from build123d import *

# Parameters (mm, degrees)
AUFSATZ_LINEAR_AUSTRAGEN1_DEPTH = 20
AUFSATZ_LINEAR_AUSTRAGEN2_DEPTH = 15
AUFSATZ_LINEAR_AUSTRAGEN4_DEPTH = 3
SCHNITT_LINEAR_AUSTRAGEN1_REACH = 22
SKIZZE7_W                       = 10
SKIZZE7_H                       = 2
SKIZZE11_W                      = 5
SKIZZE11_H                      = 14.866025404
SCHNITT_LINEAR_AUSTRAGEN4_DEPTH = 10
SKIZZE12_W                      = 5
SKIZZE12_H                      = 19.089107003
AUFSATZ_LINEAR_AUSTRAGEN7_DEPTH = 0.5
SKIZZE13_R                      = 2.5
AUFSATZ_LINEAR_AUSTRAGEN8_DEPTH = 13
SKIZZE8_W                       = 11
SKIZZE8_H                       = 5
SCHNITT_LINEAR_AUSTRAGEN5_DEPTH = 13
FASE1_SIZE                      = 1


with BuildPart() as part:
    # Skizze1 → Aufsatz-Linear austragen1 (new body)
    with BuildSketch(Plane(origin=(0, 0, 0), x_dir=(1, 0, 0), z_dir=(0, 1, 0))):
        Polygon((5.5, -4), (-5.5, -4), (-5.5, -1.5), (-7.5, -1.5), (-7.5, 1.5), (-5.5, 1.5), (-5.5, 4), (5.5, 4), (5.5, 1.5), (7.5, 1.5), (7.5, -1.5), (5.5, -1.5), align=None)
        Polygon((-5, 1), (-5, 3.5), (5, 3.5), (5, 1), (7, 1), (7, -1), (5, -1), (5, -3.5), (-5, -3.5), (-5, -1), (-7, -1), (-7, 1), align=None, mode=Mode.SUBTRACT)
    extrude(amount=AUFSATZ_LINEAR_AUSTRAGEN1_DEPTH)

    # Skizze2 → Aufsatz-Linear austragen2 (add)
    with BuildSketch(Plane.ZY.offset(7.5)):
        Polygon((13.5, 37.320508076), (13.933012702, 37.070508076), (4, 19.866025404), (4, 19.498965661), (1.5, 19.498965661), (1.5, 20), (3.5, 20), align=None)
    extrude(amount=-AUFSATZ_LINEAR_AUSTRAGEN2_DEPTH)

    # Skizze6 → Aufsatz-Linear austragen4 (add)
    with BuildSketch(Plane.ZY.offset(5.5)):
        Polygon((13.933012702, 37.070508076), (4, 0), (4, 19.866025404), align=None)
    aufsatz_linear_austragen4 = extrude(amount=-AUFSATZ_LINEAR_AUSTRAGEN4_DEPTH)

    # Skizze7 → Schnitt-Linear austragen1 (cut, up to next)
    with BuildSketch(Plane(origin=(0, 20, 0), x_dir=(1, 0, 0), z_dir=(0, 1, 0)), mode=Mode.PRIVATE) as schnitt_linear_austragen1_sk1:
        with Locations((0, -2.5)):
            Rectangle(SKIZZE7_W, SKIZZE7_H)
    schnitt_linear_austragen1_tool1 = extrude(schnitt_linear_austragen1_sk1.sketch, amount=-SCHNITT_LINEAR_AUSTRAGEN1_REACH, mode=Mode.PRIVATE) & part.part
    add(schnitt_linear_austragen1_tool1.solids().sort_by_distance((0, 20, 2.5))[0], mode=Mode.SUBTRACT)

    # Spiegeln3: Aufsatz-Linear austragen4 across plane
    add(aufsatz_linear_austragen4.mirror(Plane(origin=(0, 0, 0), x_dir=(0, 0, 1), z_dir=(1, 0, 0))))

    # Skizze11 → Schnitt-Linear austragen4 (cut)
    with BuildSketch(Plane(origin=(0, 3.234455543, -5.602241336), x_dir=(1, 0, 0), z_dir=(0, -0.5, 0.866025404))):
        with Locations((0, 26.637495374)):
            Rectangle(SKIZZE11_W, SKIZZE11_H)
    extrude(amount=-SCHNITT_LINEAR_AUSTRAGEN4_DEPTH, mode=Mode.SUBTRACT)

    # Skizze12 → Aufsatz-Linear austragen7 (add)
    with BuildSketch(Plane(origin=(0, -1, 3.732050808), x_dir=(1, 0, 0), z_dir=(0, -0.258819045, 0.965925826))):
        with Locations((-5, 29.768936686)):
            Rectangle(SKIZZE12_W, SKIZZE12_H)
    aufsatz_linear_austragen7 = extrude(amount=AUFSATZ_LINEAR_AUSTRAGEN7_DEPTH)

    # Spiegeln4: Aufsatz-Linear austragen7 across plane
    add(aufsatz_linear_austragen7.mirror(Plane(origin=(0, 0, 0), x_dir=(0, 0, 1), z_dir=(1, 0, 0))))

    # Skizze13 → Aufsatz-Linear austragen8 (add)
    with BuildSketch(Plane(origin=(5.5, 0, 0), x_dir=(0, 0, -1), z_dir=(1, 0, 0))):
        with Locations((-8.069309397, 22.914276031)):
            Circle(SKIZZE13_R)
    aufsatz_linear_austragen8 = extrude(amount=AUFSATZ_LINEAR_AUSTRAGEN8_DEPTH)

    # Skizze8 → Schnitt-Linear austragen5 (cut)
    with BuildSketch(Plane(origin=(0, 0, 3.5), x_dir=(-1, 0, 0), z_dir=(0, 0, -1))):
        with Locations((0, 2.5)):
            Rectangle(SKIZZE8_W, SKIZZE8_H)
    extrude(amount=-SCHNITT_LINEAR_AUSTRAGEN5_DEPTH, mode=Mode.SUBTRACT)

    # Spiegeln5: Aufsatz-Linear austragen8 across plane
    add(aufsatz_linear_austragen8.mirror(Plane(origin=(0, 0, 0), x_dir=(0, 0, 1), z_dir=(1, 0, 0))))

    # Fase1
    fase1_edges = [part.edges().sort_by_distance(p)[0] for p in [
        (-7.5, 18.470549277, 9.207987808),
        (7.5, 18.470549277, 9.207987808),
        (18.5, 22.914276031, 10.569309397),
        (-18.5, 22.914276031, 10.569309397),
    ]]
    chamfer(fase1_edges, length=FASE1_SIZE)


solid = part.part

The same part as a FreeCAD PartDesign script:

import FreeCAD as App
import Part
import Sketcher

V = App.Vector
Q = App.Units.Quantity


def edges_at(feature, points):
    """Names of the edges that pass closest to the given points."""
    edges = feature.Shape.Edges
    near = lambda p: min(range(len(edges)), key=lambda i: edges[i].distToShape(Part.Vertex(*p))[0])
    return sorted({f"Edge{near(p) + 1}" for p in points})

doc = App.newDocument("Part")
params = doc.addObject("Spreadsheet::Sheet", "Params")
for row, (alias, value) in enumerate([
    ("sketch1_width", "11 mm"),
    ("sketch1_width2", "2 mm"),
    ("sketch1_width3", "10 mm"),
    ("sketch1_height", "3 mm"),
    ("sketch1_height2", "2.5 mm"),
    ("pad1_length", "20 mm"),
    ("sketch2_height", "2 mm"),
    ("sketch2_length", "20 mm"),
    ("sketch2_height2", "2.5 mm"),
    ("sketch2_length2", "0.5 mm"),
    ("pad2_length", "15 mm"),
    ("pad3_length", "3 mm"),
    ("sketch4_width", "10 mm"),
    ("sketch4_height", "2 mm"),
    ("sketch5_width", "5 mm"),
    ("pocket2_length", "10 mm"),
    ("sketch6_width", "5 mm"),
    ("pad4_length", "0.5 mm"),
    ("sketch7_diameter", "5 mm"),
    ("pad5_length", "13 mm"),
    ("sketch8_width", "11 mm"),
    ("sketch8_height", "5 mm"),
    ("pocket3_length", "13 mm"),
    ("chamfer_size", "1 mm"),
], start=1):
    params.set(f"A{row}", alias)
    params.set(f"B{row}", "=" + value)
    params.setAlias(f"B{row}", alias)

body = doc.addObject("PartDesign::Body", "Body")

# Sketch on XZ plane
sketch1 = doc.addObject("Sketcher::SketchObject", "Sketch")
body.addObject(sketch1)
sketch1.AttachmentSupport = (doc.XZ_Plane, [""])
sketch1.MapMode = "FlatFace"
sketch1.addGeometry(Part.LineSegment(V(-5.5, 4, 0), V(5.5, 4, 0)), False)
sketch1.addGeometry(Part.LineSegment(V(5.5, 4, 0), V(5.5, 1.5, 0)), False)
sketch1.addGeometry(Part.LineSegment(V(5.5, 1.5, 0), V(7.5, 1.5, 0)), False)
sketch1.addGeometry(Part.LineSegment(V(7.5, 1.5, 0), V(7.5, -1.5, 0)), False)
sketch1.addGeometry(Part.LineSegment(V(7.5, -1.5, 0), V(5.5, -1.5, 0)), False)
sketch1.addGeometry(Part.LineSegment(V(5.5, -1.5, 0), V(5.5, -4, 0)), False)
sketch1.addGeometry(Part.LineSegment(V(5.5, -4, 0), V(-5.5, -4, 0)), False)
sketch1.addGeometry(Part.LineSegment(V(-5.5, -4, 0), V(-5.5, -1.5, 0)), False)
sketch1.addGeometry(Part.LineSegment(V(-5.5, -1.5, 0), V(-7.5, -1.5, 0)), False)
sketch1.addGeometry(Part.LineSegment(V(-7.5, -1.5, 0), V(-7.5, 1.5, 0)), False)
sketch1.addGeometry(Part.LineSegment(V(-7.5, 1.5, 0), V(-5.5, 1.5, 0)), False)
sketch1.addGeometry(Part.LineSegment(V(-5.5, 1.5, 0), V(-5.5, 4, 0)), False)
sketch1.addGeometry(Part.LineSegment(V(-5, -1, 0), V(-5, -3.5, 0)), False)
sketch1.addGeometry(Part.LineSegment(V(-5, -3.5, 0), V(5, -3.5, 0)), False)
sketch1.addGeometry(Part.LineSegment(V(5, -3.5, 0), V(5, -1, 0)), False)
sketch1.addGeometry(Part.LineSegment(V(5, -1, 0), V(7, -1, 0)), False)
sketch1.addGeometry(Part.LineSegment(V(7, -1, 0), V(7, 1, 0)), False)
sketch1.addGeometry(Part.LineSegment(V(7, 1, 0), V(5, 1, 0)), False)
sketch1.addGeometry(Part.LineSegment(V(5, 1, 0), V(5, 3.5, 0)), False)
sketch1.addGeometry(Part.LineSegment(V(5, 3.5, 0), V(-5, 3.5, 0)), False)
sketch1.addGeometry(Part.LineSegment(V(-5, 3.5, 0), V(-5, 1, 0)), False)
sketch1.addGeometry(Part.LineSegment(V(-5, 1, 0), V(-7, 1, 0)), False)
sketch1.addGeometry(Part.LineSegment(V(-7, 1, 0), V(-7, -1, 0)), False)
sketch1.addGeometry(Part.LineSegment(V(-7, -1, 0), V(-5, -1, 0)), False)
sketch1.addConstraint(Sketcher.Constraint("Coincident", 0, 2, 1, 1))
sketch1.addConstraint(Sketcher.Constraint("Coincident", 1, 2, 2, 1))
sketch1.addConstraint(Sketcher.Constraint("Coincident", 2, 2, 3, 1))
sketch1.addConstraint(Sketcher.Constraint("Coincident", 3, 2, 4, 1))
sketch1.addConstraint(Sketcher.Constraint("Coincident", 4, 2, 5, 1))
sketch1.addConstraint(Sketcher.Constraint("Coincident", 5, 2, 6, 1))
sketch1.addConstraint(Sketcher.Constraint("Coincident", 6, 2, 7, 1))
sketch1.addConstraint(Sketcher.Constraint("Coincident", 7, 2, 8, 1))
sketch1.addConstraint(Sketcher.Constraint("Coincident", 8, 2, 9, 1))
sketch1.addConstraint(Sketcher.Constraint("Coincident", 9, 2, 10, 1))
sketch1.addConstraint(Sketcher.Constraint("Coincident", 10, 2, 11, 1))
sketch1.addConstraint(Sketcher.Constraint("Coincident", 11, 2, 0, 1))
sketch1.addConstraint(Sketcher.Constraint("Coincident", 12, 2, 13, 1))
sketch1.addConstraint(Sketcher.Constraint("Coincident", 13, 2, 14, 1))
sketch1.addConstraint(Sketcher.Constraint("Coincident", 14, 2, 15, 1))
sketch1.addConstraint(Sketcher.Constraint("Coincident", 15, 2, 16, 1))
sketch1.addConstraint(Sketcher.Constraint("Coincident", 16, 2, 17, 1))
sketch1.addConstraint(Sketcher.Constraint("Coincident", 17, 2, 18, 1))
sketch1.addConstraint(Sketcher.Constraint("Coincident", 18, 2, 19, 1))
sketch1.addConstraint(Sketcher.Constraint("Coincident", 19, 2, 20, 1))
sketch1.addConstraint(Sketcher.Constraint("Coincident", 20, 2, 21, 1))
sketch1.addConstraint(Sketcher.Constraint("Coincident", 21, 2, 22, 1))
sketch1.addConstraint(Sketcher.Constraint("Coincident", 22, 2, 23, 1))
sketch1.addConstraint(Sketcher.Constraint("Coincident", 23, 2, 12, 1))
sketch1.addConstraint(Sketcher.Constraint("Horizontal", 0))
sketch1.addConstraint(Sketcher.Constraint("Vertical", 1))
sketch1.addConstraint(Sketcher.Constraint("Horizontal", 2))
sketch1.addConstraint(Sketcher.Constraint("Vertical", 3))
sketch1.addConstraint(Sketcher.Constraint("Horizontal", 4))
sketch1.addConstraint(Sketcher.Constraint("Vertical", 5))
sketch1.addConstraint(Sketcher.Constraint("Horizontal", 6))
sketch1.addConstraint(Sketcher.Constraint("Vertical", 7))
sketch1.addConstraint(Sketcher.Constraint("Horizontal", 8))
sketch1.addConstraint(Sketcher.Constraint("Vertical", 9))
sketch1.addConstraint(Sketcher.Constraint("Horizontal", 10))
sketch1.addConstraint(Sketcher.Constraint("Vertical", 11))
sketch1.addConstraint(Sketcher.Constraint("Vertical", 12))
sketch1.addConstraint(Sketcher.Constraint("Horizontal", 13))
sketch1.addConstraint(Sketcher.Constraint("Vertical", 14))
sketch1.addConstraint(Sketcher.Constraint("Horizontal", 15))
sketch1.addConstraint(Sketcher.Constraint("Vertical", 16))
sketch1.addConstraint(Sketcher.Constraint("Horizontal", 17))
sketch1.addConstraint(Sketcher.Constraint("Vertical", 18))
sketch1.addConstraint(Sketcher.Constraint("Horizontal", 19))
sketch1.addConstraint(Sketcher.Constraint("Vertical", 20))
sketch1.addConstraint(Sketcher.Constraint("Horizontal", 21))
sketch1.addConstraint(Sketcher.Constraint("Vertical", 22))
sketch1.addConstraint(Sketcher.Constraint("Horizontal", 23))
sketch1.addConstraint(Sketcher.Constraint("Symmetric", 0, 2, 6, 2, -1, 1))
sketch1.addConstraint(Sketcher.Constraint("Symmetric", 2, 2, 8, 2, -1, 1))
sketch1.addConstraint(Sketcher.Constraint("Symmetric", 4, 2, 10, 2, -1, 1))
sketch1.addConstraint(Sketcher.Constraint("Symmetric", 12, 2, 18, 2, -1, 1))
sketch1.addConstraint(Sketcher.Constraint("Symmetric", 14, 2, 20, 2, -1, 1))
sketch1.addConstraint(Sketcher.Constraint("Symmetric", 16, 2, 22, 2, -1, 1))
sketch1.addConstraint(Sketcher.Constraint("Symmetric", 4, 2, 7, 2, -2))
sketch1.addConstraint(Sketcher.Constraint("Symmetric", 17, 2, 20, 2, -2))
sketch1.addConstraint(Sketcher.Constraint("Equal", 10, 15))
sketch1.addConstraint(Sketcher.Constraint("Equal", 11, 12))
sketch1.addConstraint(Sketcher.Constraint("Equal", 23, 16))
sketch1.addConstraint(Sketcher.Constraint("DistanceX", 0, 1, 0, 2, Q("11 mm")))
sketch1.addConstraint(Sketcher.Constraint("DistanceX", 2, 1, 2, 2, Q("2 mm")))
sketch1.addConstraint(Sketcher.Constraint("DistanceX", 13, 1, 13, 2, Q("10 mm")))
sketch1.addConstraint(Sketcher.Constraint("DistanceY", 3, 2, 3, 1, Q("3 mm")))
sketch1.addConstraint(Sketcher.Constraint("DistanceY", 1, 2, 1, 1, Q("2.5 mm")))
sketch1.setExpression("Constraints[59]", "Params.sketch1_width")
sketch1.setExpression("Constraints[60]", "Params.sketch1_width2")
sketch1.setExpression("Constraints[61]", "Params.sketch1_width3")
sketch1.setExpression("Constraints[62]", "Params.sketch1_height")
sketch1.setExpression("Constraints[63]", "Params.sketch1_height2")
pad1 = doc.addObject("PartDesign::Pad", "Pad")
body.addObject(pad1)
pad1.Profile = sketch1
pad1.setExpression("Length", "Params.pad1_length")
pad1.Reversed = True

# Sketch on YZ plane
sketch2 = doc.addObject("Sketcher::SketchObject", "Sketch001")
body.addObject(sketch2)
sketch2.AttachmentSupport = (doc.YZ_Plane, [""])
sketch2.MapMode = "FlatFace"
sketch2.AttachmentOffset = App.Placement(V(0, 0, -7.5), App.Rotation())
sketch2.addGeometry(Part.LineSegment(V(37.070508, 13.933013, 0), V(37.320508, 13.5, 0)), False)
sketch2.addGeometry(Part.LineSegment(V(37.320508, 13.5, 0), V(20, 3.5, 0)), False)
sketch2.addGeometry(Part.LineSegment(V(20, 3.5, 0), V(20, 1.5, 0)), False)
sketch2.addGeometry(Part.LineSegment(V(20, 1.5, 0), V(19.498966, 1.5, 0)), False)
sketch2.addGeometry(Part.LineSegment(V(19.498966, 1.5, 0), V(19.498966, 4, 0)), False)
sketch2.addGeometry(Part.LineSegment(V(19.498966, 4, 0), V(19.866025, 4, 0)), False)
sketch2.addGeometry(Part.LineSegment(V(19.866025, 4, 0), V(37.070508, 13.933013, 0)), False)
sketch2.addConstraint(Sketcher.Constraint("Coincident", 0, 2, 1, 1))
sketch2.addConstraint(Sketcher.Constraint("Coincident", 1, 2, 2, 1))
sketch2.addConstraint(Sketcher.Constraint("Coincident", 2, 2, 3, 1))
sketch2.addConstraint(Sketcher.Constraint("Coincident", 3, 2, 4, 1))
sketch2.addConstraint(Sketcher.Constraint("Coincident", 4, 2, 5, 1))
sketch2.addConstraint(Sketcher.Constraint("Coincident", 5, 2, 6, 1))
sketch2.addConstraint(Sketcher.Constraint("Coincident", 6, 2, 0, 1))
sketch2.addConstraint(Sketcher.Constraint("Vertical", 2))
sketch2.addConstraint(Sketcher.Constraint("Horizontal", 3))
sketch2.addConstraint(Sketcher.Constraint("Vertical", 4))
sketch2.addConstraint(Sketcher.Constraint("Horizontal", 5))
sketch2.addConstraint(Sketcher.Constraint("Perpendicular", 0, 1))
sketch2.addConstraint(Sketcher.Constraint("Parallel", 1, 6))
sketch2.addConstraint(Sketcher.Constraint("DistanceY", 2, 2, 2, 1, Q("2 mm")))
sketch2.addConstraint(Sketcher.Constraint("Angle", 0, Q("-60 deg")))
sketch2.addConstraint(Sketcher.Constraint("Distance", 1, Q("20 mm")))
sketch2.addConstraint(Sketcher.Constraint("DistanceY", 4, 1, 4, 2, Q("2.5 mm")))
sketch2.addConstraint(Sketcher.Constraint("DistanceX", -1, 1, 1, 2, Q("20 mm")))
sketch2.addConstraint(Sketcher.Constraint("DistanceY", -1, 1, 4, 2, Q("4 mm")))
sketch2.addConstraint(Sketcher.Constraint("Distance", 0, Q("0.5 mm")))
sketch2.addConstraint(Sketcher.Constraint("DistanceX", 5, 1, 5, 2, Q("0.36706 mm")))
sketch2.setExpression("Constraints[13]", "Params.sketch2_height")
sketch2.setExpression("Constraints[15]", "Params.sketch2_length")
sketch2.setExpression("Constraints[16]", "Params.sketch2_height2")
sketch2.setExpression("Constraints[19]", "Params.sketch2_length2")
pad2 = doc.addObject("PartDesign::Pad", "Pad001")
body.addObject(pad2)
pad2.Profile = sketch2
pad2.setExpression("Length", "Params.pad2_length")

# Sketch on YZ plane
sketch3 = doc.addObject("Sketcher::SketchObject", "Sketch002")
body.addObject(sketch3)
sketch3.AttachmentSupport = (doc.YZ_Plane, [""])
sketch3.MapMode = "FlatFace"
sketch3.AttachmentOffset = App.Placement(V(0, 0, -5.5), App.Rotation())
sketch3.addGeometry(Part.LineSegment(V(0, 4, 0), V(37.070508, 13.933013, 0)), False)
sketch3.addGeometry(Part.LineSegment(V(37.070508, 13.933013, 0), V(19.866025, 4, 0)), False)
sketch3.addGeometry(Part.LineSegment(V(19.866025, 4, 0), V(0, 4, 0)), False)
sketch3.addConstraint(Sketcher.Constraint("Coincident", 0, 2, 1, 1))
sketch3.addConstraint(Sketcher.Constraint("Coincident", 1, 2, 2, 1))
sketch3.addConstraint(Sketcher.Constraint("Coincident", 2, 2, 0, 1))
sketch3.addConstraint(Sketcher.Constraint("Horizontal", 2))
sketch3.addConstraint(Sketcher.Constraint("PointOnObject", 2, 2, -2))
sketch3.addConstraint(Sketcher.Constraint("Angle", 0, Q("15 deg")))
sketch3.addConstraint(Sketcher.Constraint("Angle", 1, Q("-150 deg")))
sketch3.addConstraint(Sketcher.Constraint("DistanceY", -1, 1, 1, 2, Q("4 mm")))
sketch3.addConstraint(Sketcher.Constraint("DistanceX", 2, 2, 2, 1, Q("19.866025 mm")))
pad3 = doc.addObject("PartDesign::Pad", "Pad002")
body.addObject(pad3)
pad3.Profile = sketch3
pad3.setExpression("Length", "Params.pad3_length")

# Sketch on XZ plane
sketch4 = doc.addObject("Sketcher::SketchObject", "Sketch003")
body.addObject(sketch4)
sketch4.AttachmentSupport = (doc.XZ_Plane, [""])
sketch4.MapMode = "FlatFace"
sketch4.AttachmentOffset = App.Placement(V(0, 0, -20), App.Rotation())
sketch4.addGeometry(Part.LineSegment(V(-5, 1.5, 0), V(-5, 3.5, 0)), False)
sketch4.addGeometry(Part.LineSegment(V(-5, 3.5, 0), V(5, 3.5, 0)), False)
sketch4.addGeometry(Part.LineSegment(V(5, 3.5, 0), V(5, 1.5, 0)), False)
sketch4.addGeometry(Part.LineSegment(V(5, 1.5, 0), V(-5, 1.5, 0)), False)
sketch4.addConstraint(Sketcher.Constraint("Coincident", 0, 2, 1, 1))
sketch4.addConstraint(Sketcher.Constraint("Coincident", 1, 2, 2, 1))
sketch4.addConstraint(Sketcher.Constraint("Coincident", 2, 2, 3, 1))
sketch4.addConstraint(Sketcher.Constraint("Coincident", 3, 2, 0, 1))
sketch4.addConstraint(Sketcher.Constraint("Vertical", 0))
sketch4.addConstraint(Sketcher.Constraint("Horizontal", 1))
sketch4.addConstraint(Sketcher.Constraint("Vertical", 2))
sketch4.addConstraint(Sketcher.Constraint("Horizontal", 3))
sketch4.addConstraint(Sketcher.Constraint("DistanceX", 1, 1, 1, 2, Q("10 mm")))
sketch4.addConstraint(Sketcher.Constraint("DistanceY", 0, 1, 0, 2, Q("2 mm")))
sketch4.addConstraint(Sketcher.Constraint("DistanceX", 0, 2, -1, 1, Q("5 mm")))
sketch4.addConstraint(Sketcher.Constraint("DistanceY", -1, 1, 0, 2, Q("3.5 mm")))
sketch4.setExpression("Constraints[8]", "Params.sketch4_width")
sketch4.setExpression("Constraints[9]", "Params.sketch4_height")
pocket1 = doc.addObject("PartDesign::Pocket", "Pocket")
body.addObject(pocket1)
pocket1.Profile = sketch4
pocket1.Type = "UpToFirst"
pocket1.Reversed = True
doc.recompute()

mirrored = doc.addObject("PartDesign::Mirrored", "Mirrored")
body.addObject(mirrored)
mirrored.Originals = [pad3]
mirrored.MirrorPlane = (doc.YZ_Plane, [""])
body.Tip = mirrored

# Sketch on an angled plane
sketch5 = doc.addObject("Sketcher::SketchObject", "Sketch004")
body.addObject(sketch5)
sketch5.Placement = App.Placement(V(0, 3.234456, -5.602241), App.Rotation(V(1, 0, 0), V(0, 0.866025404, 0.5), V(0, -0.5, 0.866025404), "ZXY"))
sketch5.addGeometry(Part.LineSegment(V(-2.5, 34.070508, 0), V(-2.5, 19.204483, 0)), False)
sketch5.addGeometry(Part.LineSegment(V(-2.5, 19.204483, 0), V(2.5, 19.204483, 0)), False)
sketch5.addGeometry(Part.LineSegment(V(2.5, 19.204483, 0), V(2.5, 34.070508, 0)), False)
sketch5.addGeometry(Part.LineSegment(V(2.5, 34.070508, 0), V(-2.5, 34.070508, 0)), False)
sketch5.addConstraint(Sketcher.Constraint("Coincident", 0, 2, 1, 1))
sketch5.addConstraint(Sketcher.Constraint("Coincident", 1, 2, 2, 1))
sketch5.addConstraint(Sketcher.Constraint("Coincident", 2, 2, 3, 1))
sketch5.addConstraint(Sketcher.Constraint("Coincident", 3, 2, 0, 1))
sketch5.addConstraint(Sketcher.Constraint("Vertical", 0))
sketch5.addConstraint(Sketcher.Constraint("Horizontal", 1))
sketch5.addConstraint(Sketcher.Constraint("Vertical", 2))
sketch5.addConstraint(Sketcher.Constraint("Horizontal", 3))
sketch5.addConstraint(Sketcher.Constraint("DistanceX", 1, 1, 1, 2, Q("5 mm")))
sketch5.addConstraint(Sketcher.Constraint("DistanceX", 0, 2, -1, 1, Q("2.5 mm")))
sketch5.addConstraint(Sketcher.Constraint("DistanceY", 0, 2, 0, 1, Q("14.866025 mm")))
sketch5.addConstraint(Sketcher.Constraint("DistanceY", -1, 1, 2, 2, Q("34.070508 mm")))
sketch5.setExpression("Constraints[8]", "Params.sketch5_width")
pocket2 = doc.addObject("PartDesign::Pocket", "Pocket001")
body.addObject(pocket2)
pocket2.Profile = sketch5
pocket2.setExpression("Length", "Params.pocket2_length")

# Sketch on an angled plane
sketch6 = doc.addObject("Sketcher::SketchObject", "Sketch005")
body.addObject(sketch6)
sketch6.Placement = App.Placement(V(0, -1, 3.732051), App.Rotation(V(1, 0, 0), V(0, 0.965925826, 0.258819045), V(0, -0.258819045, 0.965925826), "ZXY"))
sketch6.addGeometry(Part.LineSegment(V(-7.5, 39.31349, 0), V(-7.5, 20.224383, 0)), False)
sketch6.addGeometry(Part.LineSegment(V(-7.5, 20.224383, 0), V(-2.5, 20.224383, 0)), False)
sketch6.addGeometry(Part.LineSegment(V(-2.5, 20.224383, 0), V(-2.5, 39.31349, 0)), False)
sketch6.addGeometry(Part.LineSegment(V(-2.5, 39.31349, 0), V(-7.5, 39.31349, 0)), False)
sketch6.addConstraint(Sketcher.Constraint("Coincident", 0, 2, 1, 1))
sketch6.addConstraint(Sketcher.Constraint("Coincident", 1, 2, 2, 1))
sketch6.addConstraint(Sketcher.Constraint("Coincident", 2, 2, 3, 1))
sketch6.addConstraint(Sketcher.Constraint("Coincident", 3, 2, 0, 1))
sketch6.addConstraint(Sketcher.Constraint("Vertical", 0))
sketch6.addConstraint(Sketcher.Constraint("Horizontal", 1))
sketch6.addConstraint(Sketcher.Constraint("Vertical", 2))
sketch6.addConstraint(Sketcher.Constraint("Horizontal", 3))
sketch6.addConstraint(Sketcher.Constraint("DistanceX", 1, 1, 1, 2, Q("5 mm")))
sketch6.addConstraint(Sketcher.Constraint("DistanceX", 0, 2, -1, 1, Q("7.5 mm")))
sketch6.addConstraint(Sketcher.Constraint("DistanceY", 0, 2, 0, 1, Q("19.089107 mm")))
sketch6.addConstraint(Sketcher.Constraint("DistanceY", -1, 1, 2, 2, Q("39.31349 mm")))
sketch6.setExpression("Constraints[8]", "Params.sketch6_width")
pad4 = doc.addObject("PartDesign::Pad", "Pad003")
body.addObject(pad4)
pad4.Profile = sketch6
pad4.setExpression("Length", "Params.pad4_length")
doc.recompute()

mirrored2 = doc.addObject("PartDesign::Mirrored", "Mirrored001")
body.addObject(mirrored2)
mirrored2.Originals = [pad4]
mirrored2.MirrorPlane = (doc.YZ_Plane, [""])
body.Tip = mirrored2

# Sketch on YZ plane
sketch7 = doc.addObject("Sketcher::SketchObject", "Sketch006")
body.addObject(sketch7)
sketch7.AttachmentSupport = (doc.YZ_Plane, [""])
sketch7.MapMode = "FlatFace"
sketch7.AttachmentOffset = App.Placement(V(0, 0, 5.5), App.Rotation())
sketch7.addGeometry(Part.Circle(V(22.914276, 8.069309, 0), V(0, 0, 1), 2.5), False)
sketch7.addConstraint(Sketcher.Constraint("Diameter", 0, Q("5 mm")))
sketch7.addConstraint(Sketcher.Constraint("DistanceY", -1, 1, 0, 3, Q("8.069309 mm")))
sketch7.addConstraint(Sketcher.Constraint("DistanceX", -1, 1, 0, 3, Q("22.914276 mm")))
sketch7.setExpression("Constraints[0]", "Params.sketch7_diameter")
pad5 = doc.addObject("PartDesign::Pad", "Pad004")
body.addObject(pad5)
pad5.Profile = sketch7
pad5.setExpression("Length", "Params.pad5_length")

# Sketch on XY plane
sketch8 = doc.addObject("Sketcher::SketchObject", "Sketch007")
body.addObject(sketch8)
sketch8.AttachmentSupport = (doc.XY_Plane, [""])
sketch8.MapMode = "FlatFace"
sketch8.AttachmentOffset = App.Placement(V(0, 0, 3.5), App.Rotation())
sketch8.addGeometry(Part.LineSegment(V(5.5, 5, 0), V(5.5, 0, 0)), False)
sketch8.addGeometry(Part.LineSegment(V(5.5, 0, 0), V(-5.5, 0, 0)), False)
sketch8.addGeometry(Part.LineSegment(V(-5.5, 0, 0), V(-5.5, 5, 0)), False)
sketch8.addGeometry(Part.LineSegment(V(-5.5, 5, 0), V(5.5, 5, 0)), False)
sketch8.addConstraint(Sketcher.Constraint("Coincident", 0, 2, 1, 1))
sketch8.addConstraint(Sketcher.Constraint("Coincident", 1, 2, 2, 1))
sketch8.addConstraint(Sketcher.Constraint("Coincident", 2, 2, 3, 1))
sketch8.addConstraint(Sketcher.Constraint("Coincident", 3, 2, 0, 1))
sketch8.addConstraint(Sketcher.Constraint("Vertical", 0))
sketch8.addConstraint(Sketcher.Constraint("Horizontal", 1))
sketch8.addConstraint(Sketcher.Constraint("Vertical", 2))
sketch8.addConstraint(Sketcher.Constraint("Horizontal", 3))
sketch8.addConstraint(Sketcher.Constraint("Symmetric", 0, 2, 1, 2, -1, 1))
sketch8.addConstraint(Sketcher.Constraint("DistanceX", 1, 2, 1, 1, Q("11 mm")))
sketch8.addConstraint(Sketcher.Constraint("DistanceY", 0, 2, 0, 1, Q("5 mm")))
sketch8.setExpression("Constraints[9]", "Params.sketch8_width")
sketch8.setExpression("Constraints[10]", "Params.sketch8_height")
pocket3 = doc.addObject("PartDesign::Pocket", "Pocket002")
body.addObject(pocket3)
pocket3.Profile = sketch8
pocket3.setExpression("Length", "Params.pocket3_length")
pocket3.Reversed = True
doc.recompute()

mirrored3 = doc.addObject("PartDesign::Mirrored", "Mirrored002")
body.addObject(mirrored3)
mirrored3.Originals = [pad5]
mirrored3.MirrorPlane = (doc.YZ_Plane, [""])
body.Tip = mirrored3
doc.recompute()

chamfer = doc.addObject("PartDesign::Chamfer", "Chamfer")
body.addObject(chamfer)
chamfer.Base = (mirrored3, edges_at(mirrored3, [
    (-7.5, 18.471, 9.208),
    (7.5, 18.471, 9.208),
    (18.5, 22.914, 10.569),
    (-18.5, 22.914, 10.569),
]))
chamfer.setExpression("Size", "Params.chamfer_size")

doc.recompute()
